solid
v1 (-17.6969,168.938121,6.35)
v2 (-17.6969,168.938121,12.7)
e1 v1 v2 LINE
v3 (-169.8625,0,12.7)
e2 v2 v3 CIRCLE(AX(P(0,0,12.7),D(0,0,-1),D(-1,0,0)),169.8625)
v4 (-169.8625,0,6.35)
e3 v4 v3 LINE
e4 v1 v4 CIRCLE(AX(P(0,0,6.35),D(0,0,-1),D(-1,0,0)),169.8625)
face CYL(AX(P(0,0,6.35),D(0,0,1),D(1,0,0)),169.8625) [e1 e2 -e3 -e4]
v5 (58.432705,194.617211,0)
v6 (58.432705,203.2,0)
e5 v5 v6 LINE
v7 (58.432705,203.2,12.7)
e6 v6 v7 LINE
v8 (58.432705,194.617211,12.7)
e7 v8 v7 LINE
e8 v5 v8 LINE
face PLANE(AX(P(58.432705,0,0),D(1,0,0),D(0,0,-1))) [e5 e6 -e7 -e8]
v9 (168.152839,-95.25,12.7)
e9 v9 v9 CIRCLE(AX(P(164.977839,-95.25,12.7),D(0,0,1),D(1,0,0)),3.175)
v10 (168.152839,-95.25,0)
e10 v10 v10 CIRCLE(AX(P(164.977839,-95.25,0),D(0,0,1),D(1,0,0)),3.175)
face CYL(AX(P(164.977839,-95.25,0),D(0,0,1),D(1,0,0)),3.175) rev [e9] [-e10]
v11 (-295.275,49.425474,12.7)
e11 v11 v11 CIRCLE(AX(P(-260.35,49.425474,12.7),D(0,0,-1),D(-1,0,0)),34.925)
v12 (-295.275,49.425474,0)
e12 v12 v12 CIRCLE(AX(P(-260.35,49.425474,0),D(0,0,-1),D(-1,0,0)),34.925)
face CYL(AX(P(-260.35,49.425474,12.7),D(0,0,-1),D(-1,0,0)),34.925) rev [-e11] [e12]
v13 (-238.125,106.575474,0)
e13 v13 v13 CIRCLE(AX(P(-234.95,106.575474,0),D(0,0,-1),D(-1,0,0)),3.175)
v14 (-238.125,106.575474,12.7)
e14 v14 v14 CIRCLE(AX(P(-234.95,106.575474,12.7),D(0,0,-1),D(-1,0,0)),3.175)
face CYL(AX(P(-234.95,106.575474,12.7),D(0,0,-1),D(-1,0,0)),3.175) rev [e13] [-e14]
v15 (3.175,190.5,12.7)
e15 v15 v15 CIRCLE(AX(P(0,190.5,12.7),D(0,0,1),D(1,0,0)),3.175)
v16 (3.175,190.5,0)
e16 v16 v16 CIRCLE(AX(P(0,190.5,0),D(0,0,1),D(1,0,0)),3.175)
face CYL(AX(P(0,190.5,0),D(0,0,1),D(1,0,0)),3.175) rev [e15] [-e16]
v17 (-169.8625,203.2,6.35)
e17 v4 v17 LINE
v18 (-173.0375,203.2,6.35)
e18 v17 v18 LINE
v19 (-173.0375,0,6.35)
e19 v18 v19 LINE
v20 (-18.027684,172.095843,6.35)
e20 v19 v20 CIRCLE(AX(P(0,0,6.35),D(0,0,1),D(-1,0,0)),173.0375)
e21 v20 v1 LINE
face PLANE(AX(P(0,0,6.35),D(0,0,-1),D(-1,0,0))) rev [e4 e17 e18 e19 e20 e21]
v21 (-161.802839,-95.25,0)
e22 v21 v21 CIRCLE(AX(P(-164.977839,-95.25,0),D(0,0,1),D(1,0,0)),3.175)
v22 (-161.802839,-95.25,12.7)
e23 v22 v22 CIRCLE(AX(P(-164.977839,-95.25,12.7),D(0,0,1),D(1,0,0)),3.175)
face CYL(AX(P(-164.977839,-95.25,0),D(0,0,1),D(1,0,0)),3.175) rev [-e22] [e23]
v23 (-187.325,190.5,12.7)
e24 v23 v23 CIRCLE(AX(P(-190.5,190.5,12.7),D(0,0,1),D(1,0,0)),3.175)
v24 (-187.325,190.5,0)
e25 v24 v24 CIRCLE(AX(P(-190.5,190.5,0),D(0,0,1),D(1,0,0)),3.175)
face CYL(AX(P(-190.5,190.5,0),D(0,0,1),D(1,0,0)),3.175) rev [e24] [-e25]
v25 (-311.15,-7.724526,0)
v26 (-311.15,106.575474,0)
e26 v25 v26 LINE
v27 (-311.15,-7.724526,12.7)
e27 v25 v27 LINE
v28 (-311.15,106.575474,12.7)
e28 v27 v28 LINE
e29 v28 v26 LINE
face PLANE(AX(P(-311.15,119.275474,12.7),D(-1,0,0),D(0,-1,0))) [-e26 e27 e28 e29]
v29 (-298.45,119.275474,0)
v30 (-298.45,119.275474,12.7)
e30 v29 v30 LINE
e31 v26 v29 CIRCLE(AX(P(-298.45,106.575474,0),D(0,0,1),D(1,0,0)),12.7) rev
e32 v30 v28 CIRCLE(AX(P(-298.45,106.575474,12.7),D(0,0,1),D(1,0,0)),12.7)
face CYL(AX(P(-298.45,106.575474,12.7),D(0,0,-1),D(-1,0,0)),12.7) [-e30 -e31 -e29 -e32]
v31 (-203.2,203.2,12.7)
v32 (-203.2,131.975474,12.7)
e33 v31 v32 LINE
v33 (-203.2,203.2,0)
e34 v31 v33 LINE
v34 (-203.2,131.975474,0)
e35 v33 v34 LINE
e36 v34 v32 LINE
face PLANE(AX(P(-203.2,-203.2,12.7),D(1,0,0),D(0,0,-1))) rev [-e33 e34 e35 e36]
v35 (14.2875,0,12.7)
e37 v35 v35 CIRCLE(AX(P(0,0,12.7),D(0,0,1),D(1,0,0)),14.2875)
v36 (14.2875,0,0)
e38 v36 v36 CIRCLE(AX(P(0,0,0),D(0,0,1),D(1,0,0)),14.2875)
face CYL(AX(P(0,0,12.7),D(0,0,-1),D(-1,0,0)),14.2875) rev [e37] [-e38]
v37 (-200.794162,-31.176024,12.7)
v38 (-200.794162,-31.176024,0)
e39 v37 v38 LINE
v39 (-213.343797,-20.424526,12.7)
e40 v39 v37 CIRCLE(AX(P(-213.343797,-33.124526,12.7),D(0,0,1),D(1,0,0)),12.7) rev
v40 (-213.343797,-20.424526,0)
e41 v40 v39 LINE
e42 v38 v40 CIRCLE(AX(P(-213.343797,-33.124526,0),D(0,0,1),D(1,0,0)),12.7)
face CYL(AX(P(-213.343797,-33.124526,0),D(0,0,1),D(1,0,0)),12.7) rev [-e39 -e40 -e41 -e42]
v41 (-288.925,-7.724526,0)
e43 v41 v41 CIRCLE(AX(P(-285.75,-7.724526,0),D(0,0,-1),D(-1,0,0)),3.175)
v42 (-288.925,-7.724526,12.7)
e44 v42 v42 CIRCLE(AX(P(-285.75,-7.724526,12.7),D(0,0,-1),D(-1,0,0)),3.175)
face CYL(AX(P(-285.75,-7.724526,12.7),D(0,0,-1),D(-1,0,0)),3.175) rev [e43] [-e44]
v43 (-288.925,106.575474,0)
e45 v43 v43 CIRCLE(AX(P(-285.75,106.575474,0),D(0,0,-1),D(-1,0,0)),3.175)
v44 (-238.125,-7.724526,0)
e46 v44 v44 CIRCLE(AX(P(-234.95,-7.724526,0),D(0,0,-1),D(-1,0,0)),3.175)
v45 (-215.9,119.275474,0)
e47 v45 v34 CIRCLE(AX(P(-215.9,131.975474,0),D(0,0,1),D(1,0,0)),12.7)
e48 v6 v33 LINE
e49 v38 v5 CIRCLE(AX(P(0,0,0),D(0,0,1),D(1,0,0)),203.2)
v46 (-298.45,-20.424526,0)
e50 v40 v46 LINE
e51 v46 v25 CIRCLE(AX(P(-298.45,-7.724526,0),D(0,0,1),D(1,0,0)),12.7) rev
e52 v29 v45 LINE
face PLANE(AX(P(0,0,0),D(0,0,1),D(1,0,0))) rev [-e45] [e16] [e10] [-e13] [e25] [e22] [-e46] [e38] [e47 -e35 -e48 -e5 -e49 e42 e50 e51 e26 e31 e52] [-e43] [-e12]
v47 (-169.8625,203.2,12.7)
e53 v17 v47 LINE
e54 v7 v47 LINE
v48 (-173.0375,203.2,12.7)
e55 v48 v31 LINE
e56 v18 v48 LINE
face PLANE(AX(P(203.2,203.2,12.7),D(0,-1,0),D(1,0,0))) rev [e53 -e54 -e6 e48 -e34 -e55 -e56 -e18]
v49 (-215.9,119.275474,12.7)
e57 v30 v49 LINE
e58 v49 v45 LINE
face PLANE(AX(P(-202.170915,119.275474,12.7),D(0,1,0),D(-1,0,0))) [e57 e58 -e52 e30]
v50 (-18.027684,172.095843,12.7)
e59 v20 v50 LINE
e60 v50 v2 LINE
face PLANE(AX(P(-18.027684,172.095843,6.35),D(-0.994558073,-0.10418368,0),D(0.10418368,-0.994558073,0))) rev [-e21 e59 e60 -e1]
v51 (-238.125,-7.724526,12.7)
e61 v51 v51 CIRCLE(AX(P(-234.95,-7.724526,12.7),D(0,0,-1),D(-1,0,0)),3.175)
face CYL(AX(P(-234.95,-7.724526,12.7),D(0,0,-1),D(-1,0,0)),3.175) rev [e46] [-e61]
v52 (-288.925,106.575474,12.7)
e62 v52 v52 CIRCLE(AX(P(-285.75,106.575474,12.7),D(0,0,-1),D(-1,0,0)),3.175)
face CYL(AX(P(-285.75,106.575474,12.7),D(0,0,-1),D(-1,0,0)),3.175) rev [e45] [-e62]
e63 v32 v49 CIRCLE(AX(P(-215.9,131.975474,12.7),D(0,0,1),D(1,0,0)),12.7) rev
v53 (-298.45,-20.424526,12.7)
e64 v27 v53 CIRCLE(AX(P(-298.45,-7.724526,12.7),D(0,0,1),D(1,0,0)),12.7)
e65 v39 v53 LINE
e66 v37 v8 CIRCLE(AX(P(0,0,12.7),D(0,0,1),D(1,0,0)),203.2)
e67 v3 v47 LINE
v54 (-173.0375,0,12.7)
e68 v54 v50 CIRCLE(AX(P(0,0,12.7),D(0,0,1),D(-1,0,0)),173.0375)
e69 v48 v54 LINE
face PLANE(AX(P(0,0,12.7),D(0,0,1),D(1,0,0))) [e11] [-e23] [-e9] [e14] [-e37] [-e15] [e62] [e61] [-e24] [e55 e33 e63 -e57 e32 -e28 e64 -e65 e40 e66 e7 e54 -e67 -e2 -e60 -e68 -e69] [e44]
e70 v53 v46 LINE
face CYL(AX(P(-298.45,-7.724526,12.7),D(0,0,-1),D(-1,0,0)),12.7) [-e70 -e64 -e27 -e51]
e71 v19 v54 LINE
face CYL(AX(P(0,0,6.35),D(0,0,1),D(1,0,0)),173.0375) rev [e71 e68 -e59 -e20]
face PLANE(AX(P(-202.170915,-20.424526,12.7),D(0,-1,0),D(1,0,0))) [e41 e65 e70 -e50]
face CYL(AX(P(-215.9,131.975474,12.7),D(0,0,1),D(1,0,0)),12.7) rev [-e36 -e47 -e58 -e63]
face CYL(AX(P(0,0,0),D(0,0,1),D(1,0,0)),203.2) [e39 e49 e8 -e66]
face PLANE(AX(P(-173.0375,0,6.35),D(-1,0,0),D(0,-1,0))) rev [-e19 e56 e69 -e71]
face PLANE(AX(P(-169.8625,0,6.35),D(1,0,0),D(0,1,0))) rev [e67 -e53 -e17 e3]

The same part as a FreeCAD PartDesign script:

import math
import FreeCAD as App
import Part
import Sketcher

V = App.Vector
Q = App.Units.Quantity


def edges_at(feature, points):
    """Names of the edges that pass closest to the given points."""
    edges = feature.Shape.Edges
    near = lambda p: min(range(len(edges)), key=lambda i: edges[i].distToShape(Part.Vertex(*p))[0])
    return sorted({f"Edge{near(p) + 1}" for p in points})

doc = App.newDocument("Part")
body = doc.addObject("PartDesign::Body", "Body")

# Sketch on XY plane
sketch1 = body.newObject("Sketcher::SketchObject", "Sketch")
sketch1.AttachmentSupport = (doc.getObject("XY_Plane"), [""])
sketch1.MapMode = "FlatFace"
sketch1.addGeometry([
    Part.LineSegment(V(-203.2, 203.2, 0), V(-203.2, -203.2, 0)),  # 0
    Part.LineSegment(V(-203.2, -203.2, 0), V(203.2, -203.2, 0)),  # 1
    Part.LineSegment(V(203.2, -203.2, 0), V(203.2, 203.2, 0)),  # 2
    Part.LineSegment(V(203.2, 203.2, 0), V(-203.2, 203.2, 0)),  # 3
    Part.Circle(V(0, 0, 0), V(0, 0, 1), 14.2875),  # 4
], False)
sketch1.addConstraint([
    Sketcher.Constraint("Coincident", 0, 2, 1, 1),
    Sketcher.Constraint("Coincident", 1, 2, 2, 1),
    Sketcher.Constraint("Coincident", 2, 2, 3, 1),
    Sketcher.Constraint("Coincident", 3, 2, 0, 1),
    Sketcher.Constraint("Vertical", 0),
    Sketcher.Constraint("Horizontal", 1),
    Sketcher.Constraint("Vertical", 2),
    Sketcher.Constraint("Horizontal", 3),
    Sketcher.Constraint("Coincident", 4, 3, -1, 1),
    Sketcher.Constraint("Symmetric", 0, 2, 2, 2, -1, 1),
    Sketcher.Constraint("Equal", 3, 0),
    Sketcher.Constraint("DistanceX", 1, 1, 1, 2, Q("16 in")),
    Sketcher.Constraint("Diameter", 4, Q("1.125 in")),
])
pad1 = body.newObject("PartDesign::Pad", "Pad")
pad1.Profile = sketch1
pad1.Length = Q("0.5 in")

# Sketch on XY plane
sketch2 = body.newObject("Sketcher::SketchObject", "Sketch001")
sketch2.AttachmentSupport = (doc.getObject("XY_Plane"), [""])
sketch2.MapMode = "FlatFace"
sketch2.AttachmentOffset = App.Placement(V(0, 0, 0.5 * 25.4), App.Rotation())
sketch2.addGeometry([
    Part.LineSegment(V(-18.027684, 172.095843, 0), V(-17.6969, 168.938121, 0)),  # 0
    Part.ArcOfCircle(Part.Circle(V(0, 0, 0), V(0, 0, 1), 169.8625), math.radians(180), math.radians(455.980137)),  # 1
    Part.LineSegment(V(-169.8625, 0, 0), V(-169.8625, 203.2, 0)),  # 2
    Part.LineSegment(V(-169.8625, 203.2, 0), V(-173.0375, 203.2, 0)),  # 3
    Part.LineSegment(V(-173.0375, 203.2, 0), V(-173.0375, 0, 0)),  # 4
    Part.ArcOfCircle(Part.Circle(V(0, 0, 0), V(0, 0, 1), 173.0375), math.radians(180), math.radians(455.980137)),  # 5
], False)
sketch2.addConstraint([
    Sketcher.Constraint("Coincident", 0, 2, 1, 2),
    Sketcher.Constraint("Tangent", 1, 1, 2, 1),
    Sketcher.Constraint("Coincident", 2, 2, 3, 1),
    Sketcher.Constraint("Coincident", 3, 2, 4, 1),
    Sketcher.Constraint("Tangent", 4, 2, 5, 1),
    Sketcher.Constraint("Coincident", 5, 2, 0, 1),
    Sketcher.Constraint("Vertical", 2),
    Sketcher.Constraint("Horizontal", 3),
    Sketcher.Constraint("Vertical", 4),
    Sketcher.Constraint("Coincident", 1, 3, -1, 1),
    Sketcher.Constraint("Coincident", 5, 3, -1, 1),
    Sketcher.Constraint("DistanceY", 2, 1, 2, 2, Q("8 in")),
    Sketcher.Constraint("Radius", 1, Q("6.6875 in")),
    Sketcher.Constraint("Radius", 5, Q("6.8125 in")),
    Sketcher.Constraint("DistanceX", 0, 2, -1, 1, 17.6969),
    Sketcher.Constraint("DistanceY", 0, 2, 5, 2, 3.157722),
])
pocket1 = body.newObject("PartDesign::Pocket", "Pocket")
pocket1.Profile = sketch2
pocket1.Length = Q("0.25 in")

# Sketch on XY plane
sketch3 = body.newObject("Sketcher::SketchObject", "Sketch002")
sketch3.AttachmentSupport = (doc.getObject("XY_Plane"), [""])
sketch3.MapMode = "FlatFace"
sketch3.AttachmentOffset = App.Placement(V(0, 0, 0.5 * 25.4), App.Rotation())
sketch3.addGeometry([
    Part.LineSegment(V(58.432705, 203.2, 0), V(58.432705, 194.617211, 0)),  # 0
    Part.ArcOfCircle(Part.Circle(V(0, 0, 0), V(0, 0, 1), 203.2), math.radians(0), math.radians(73.287916)),  # 1
    Part.LineSegment(V(203.2, 0, 0), V(203.2, 203.2, 0)),  # 2
    Part.LineSegment(V(203.2, 203.2, 0), V(58.432705, 203.2, 0)),  # 3
    Part.LineSegment(V(203.2, -203.2, 0), V(203.2, 0, 0)),  # 4
    Part.ArcOfCircle(Part.Circle(V(0, 0, 0), V(0, 0, 1), 203.2), math.radians(-90), math.radians(0)),  # 5
    Part.LineSegment(V(0, -203.2, 0), V(203.2, -203.2, 0)),  # 6
    Part.LineSegment(V(-203.2, -203.2, 0), V(0, -203.2, 0)),  # 7
    Part.ArcOfCircle(Part.Circle(V(0, 0, 0), V(0, 0, 1), 203.2), math.radians(180), math.radians(270)),  # 8
    Part.LineSegment(V(-203.2, 0, 0), V(-203.2, -203.2, 0)),  # 9
], False)
sketch3.addConstraint([
    Sketcher.Constraint("Coincident", 0, 2, 1, 2),
    Sketcher.Constraint("Tangent", 1, 1, 2, 1),
    Sketcher.Constraint("Coincident", 2, 2, 3, 1),
    Sketcher.Constraint("Coincident", 3, 2, 0, 1),
    Sketcher.Constraint("Tangent", 4, 2, 5, 2),
    Sketcher.Constraint("Tangent", 5, 1, 6, 1),
    Sketcher.Constraint("Coincident", 6, 2, 4, 1),
    Sketcher.Constraint("Tangent", 7, 2, 8, 2),
    Sketcher.Constraint("Tangent", 8, 1, 9, 1),
    Sketcher.Constraint("Coincident", 9, 2, 7, 1),
    Sketcher.Constraint("Vertical", 0),
    Sketcher.Constraint("Vertical", 2),
    Sketcher.Constraint("Horizontal", 3),
    Sketcher.Constraint("Vertical", 4),
    Sketcher.Constraint("Horizontal", 6),
    Sketcher.Constraint("Horizontal", 7),
    Sketcher.Constraint("Vertical", 9),
    Sketcher.Constraint("Coincident", 1, 3, -1, 1),
    Sketcher.Constraint("Coincident", 5, 3, -1, 1),
    Sketcher.Constraint("Coincident", 8, 3, -1, 1),
    Sketcher.Constraint("Equal", 1, 5),
    Sketcher.Constraint("Equal", 5, 8),
    Sketcher.Constraint("Equal", 7, 2),
    Sketcher.Constraint("Radius", 1, Q("8 in")),
    Sketcher.Constraint("DistanceX", 3, 2, 3, 1, Q("5.6994998 in")),
])
pocket2 = body.newObject("PartDesign::Pocket", "Pocket001")
pocket2.Profile = sketch3
pocket2.Type = "ThroughAll"

# Sketch on XY plane
sketch4 = body.newObject("Sketcher::SketchObject", "Sketch003")
sketch4.AttachmentSupport = (doc.getObject("XY_Plane"), [""])
sketch4.MapMode = "FlatFace"
sketch4.AttachmentOffset = App.Placement(V(0, 0, 0.5 * 25.4), App.Rotation())
sketch4.addGeometry([
    Part.Circle(V(-190.5, 190.5, 0), V(0, 0, 1), 3.175),
    Part.Circle(V(-164.977839, -95.25, 0), V(0, 0, 1), 3.175),
    Part.Circle(V(164.977839, -95.25, 0), V(0, 0, 1), 3.175),
    Part.Circle(V(0, 190.5, 0), V(0, 0, 1), 3.175),
], False)
sketch4.addConstraint([
    Sketcher.Constraint("Equal", 0, 1),
    Sketcher.Constraint("Equal", 1, 2),
    Sketcher.Constraint("Equal", 2, 3),
    Sketcher.Constraint("Symmetric", 1, 3, 2, 3, -2),
    Sketcher.Constraint("PointOnObject", 3, 3, -2),
    Sketcher.Constraint("Horizontal", 0, 3, 3, 3),
    Sketcher.Constraint("Diameter", 0, Q("0.25 in")),
    Sketcher.Constraint("DistanceX", 0, 3, -1, 1, Q("7.5 in")),
    Sketcher.Constraint("DistanceY", -1, 1, 0, 3, Q("7.5 in")),
    Sketcher.Constraint("DistanceY", 1, 3, -1, 1, Q("3.75 in")),
    Sketcher.Constraint("DistanceX", 1, 3, -1, 1, 164.977839),
])
pocket3 = body.newObject("PartDesign::Pocket", "Pocket002")
pocket3.Profile = sketch4
pocket3.Type = "ThroughAll"
pocket3.Midplane = True

# Sketch on XY plane
sketch5 = body.newObject("Sketcher::SketchObject", "Sketch004")
sketch5.AttachmentSupport = (doc.getObject("XY_Plane"), [""])
sketch5.MapMode = "FlatFace"
sketch5.addGeometry([
    Part.LineSegment(V(-202.170915, 119.275474, 0), V(-202.170915, -20.424526, 0)),  # 0
    Part.LineSegment(V(-202.170915, -20.424526, 0), V(-311.15, -20.424526, 0)),  # 1
    Part.LineSegment(V(-311.15, -20.424526, 0), V(-311.15, 119.275474, 0)),  # 2
    Part.LineSegment(V(-311.15, 119.275474, 0), V(-202.170915, 119.275474, 0)),  # 3
    Part.Circle(V(-234.95, -7.724526, 0), V(0, 0, 1), 3.175),  # 4
    Part.Circle(V(-285.75, -7.724526, 0), V(0, 0, 1), 3.175),  # 5
    Part.Circle(V(-234.95, 106.575474, 0), V(0, 0, 1), 3.175),  # 6
    Part.Circle(V(-260.35, 49.425474, 0), V(0, 0, 1), 34.925),  # 7
    Part.Circle(V(-285.75, 106.575474, 0), V(0, 0, 1), 3.175),  # 8
], False)
sketch5.addConstraint([
    Sketcher.Constraint("Coincident", 0, 2, 1, 1),
    Sketcher.Constraint("Coincident", 1, 2, 2, 1),
    Sketcher.Constraint("Coincident", 2, 2, 3, 1),
    Sketcher.Constraint("Coincident", 3, 2, 0, 1),
    Sketcher.Constraint("Vertical", 0),
    Sketcher.Constraint("Horizontal", 1),
    Sketcher.Constraint("Vertical", 2),
    Sketcher.Constraint("Horizontal", 3),
    Sketcher.Constraint("Equal", 4, 5),
    Sketcher.Constraint("Equal", 5, 6),
    Sketcher.Constraint("Equal", 6, 8),
    Sketcher.Constraint("Horizontal", 4, 3, 5, 3),
    Sketcher.Constraint("Horizontal", 6, 3, 8, 3),
    Sketcher.Constraint("Vertical", 4, 3, 6, 3),
    Sketcher.Constraint("Vertical", 5, 3, 8, 3),
    Sketcher.Constraint("Diameter", 4, Q("0.25 in")),
    Sketcher.Constraint("Diameter", 7, Q("2.75 in")),
    Sketcher.Constraint("DistanceY", 0, 2, 0, 1, Q("5.5 in")),
    Sketcher.Constraint("DistanceX", 5, 3, 4, 3, Q("2 in")),
    Sketcher.Constraint("DistanceX", 5, 3, 7, 3, Q("1 in")),
    Sketcher.Constraint("DistanceY", 0, 2, 6, 3, Q("5 in")),
    Sketcher.Constraint("DistanceX", 1, 2, 5, 3, Q("1 in")),
    Sketcher.Constraint("DistanceY", 5, 3, 2, 2, Q("5 in")),
    Sketcher.Constraint("DistanceX", 4, 3, -1, 1, Q("9.25 in")),
    Sketcher.Constraint("DistanceY", 5, 3, 7, 3, Q("2.25 in")),
    Sketcher.Constraint("DistanceX", 1, 2, 1, 1, 108.979085),
    Sketcher.Constraint("DistanceY", 4, 3, -1, 1, 7.724526),
])
pad2 = body.newObject("PartDesign::Pad", "Pad001")
pad2.Profile = sketch5
pad2.Length = Q("0.5 in")
doc.recompute()

fillet = body.newObject("PartDesign::Fillet", "Fillet")
fillet.Base = (pad2, edges_at(pad2, [
    (-202.171, -20.425, 6.35),
    (-311.15, 119.275, 6.35),
    (-311.15, -20.425, 6.35),
    (-203.2, 119.275, 6.35),
]))
fillet.Radius = Q("0.5 in")

doc.recompute()
